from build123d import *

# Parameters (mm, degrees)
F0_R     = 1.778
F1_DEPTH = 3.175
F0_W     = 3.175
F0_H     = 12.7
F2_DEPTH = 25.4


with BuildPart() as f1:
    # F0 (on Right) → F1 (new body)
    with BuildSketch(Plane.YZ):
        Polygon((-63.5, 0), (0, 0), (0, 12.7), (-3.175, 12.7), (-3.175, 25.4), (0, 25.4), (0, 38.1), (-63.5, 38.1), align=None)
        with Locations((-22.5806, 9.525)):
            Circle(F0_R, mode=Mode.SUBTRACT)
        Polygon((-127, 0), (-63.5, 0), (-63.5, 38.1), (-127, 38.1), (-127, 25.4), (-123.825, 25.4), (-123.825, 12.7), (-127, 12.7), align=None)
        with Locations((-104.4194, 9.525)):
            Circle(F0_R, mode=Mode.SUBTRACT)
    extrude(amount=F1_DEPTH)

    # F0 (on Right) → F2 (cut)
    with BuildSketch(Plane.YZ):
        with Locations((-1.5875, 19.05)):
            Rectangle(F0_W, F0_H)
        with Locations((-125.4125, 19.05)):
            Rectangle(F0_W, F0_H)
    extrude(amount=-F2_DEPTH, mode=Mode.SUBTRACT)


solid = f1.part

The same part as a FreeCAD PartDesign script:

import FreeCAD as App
import Part
import Sketcher

V = App.Vector
Q = App.Units.Quantity

doc = App.newDocument("Part")
body = doc.addObject("PartDesign::Body", "Body")

sketch1 = body.newObject("Sketcher::SketchObject", "Sketch")
sketch1.AttachmentSupport = (doc.getObject("YZ_Plane"), [""])
sketch1.MapMode = "FlatFace"
sketch1.addGeometry([
    Part.LineSegment(V(0, 0, 0), V(0, 12.7, 0)),
    Part.LineSegment(V(0, 12.7, 0), V(-3.2, 12.7, 0)),
    Part.LineSegment(V(-3.2, 12.7, 0), V(-3.2, 25.4, 0)),
    Part.LineSegment(V(-3.2, 25.4, 0), V(0, 25.4, 0)),
    Part.LineSegment(V(0, 25.4, 0), V(0, 38.1, 0)),
    Part.LineSegment(V(0, 38.1, 0), V(-127, 38.1, 0)),
    Part.LineSegment(V(-127, 38.1, 0), V(-127, 25.4, 0)),
    Part.LineSegment(V(-127, 25.4, 0), V(-123.8, 25.4, 0)),
    Part.LineSegment(V(-123.8, 25.4, 0), V(-123.8, 12.7, 0)),
    Part.LineSegment(V(-123.8, 12.7, 0), V(-127, 12.7, 0)),
    Part.LineSegment(V(-127, 12.7, 0), V(-127, 0, 0)),
    Part.LineSegment(V(-127, 0, 0), V(0, 0, 0)),
    Part.Circle(V(-104.4, 9.5, 0), V(0, 0, 1), 1.8),
    Part.Circle(V(-22.6, 9.5, 0), V(0, 0, 1), 1.8),
], False)
sketch1.addConstraint([
    Sketcher.Constraint("Coincident", 0, 2, 1, 1),
    Sketcher.Constraint("Coincident", 1, 2, 2, 1),
    Sketcher.Constraint("Coincident", 2, 2, 3, 1),
    Sketcher.Constraint("Coincident", 3, 2, 4, 1),
    Sketcher.Constraint("Coincident", 4, 2, 5, 1),
    Sketcher.Constraint("Coincident", 5, 2, 6, 1),
    Sketcher.Constraint("Coincident", 6, 2, 7, 1),
    Sketcher.Constraint("Coincident", 7, 2, 8, 1),
    Sketcher.Constraint("Coincident", 8, 2, 9, 1),
    Sketcher.Constraint("Coincident", 9, 2, 10, 1),
    Sketcher.Constraint("Coincident", 10, 2, 11, 1),
    Sketcher.Constraint("Coincident", 11, 2, 0, 1),
    Sketcher.Constraint("Vertical", 0),
    Sketcher.Constraint("Horizontal", 1),
    Sketcher.Constraint("Vertical", 2),
    Sketcher.Constraint("Horizontal", 3),
    Sketcher.Constraint("Vertical", 4),
    Sketcher.Constraint("Horizontal", 5),
    Sketcher.Constraint("Vertical", 6),
    Sketcher.Constraint("Horizontal", 7),
    Sketcher.Constraint("Vertical", 8),
    Sketcher.Constraint("Horizontal", 9),
    Sketcher.Constraint("Vertical", 10),
    Sketcher.Constraint("Horizontal", 11),
    Sketcher.Constraint("Coincident", 11, 2, -1, 1),
    Sketcher.Constraint("Equal", 12, 13),
    Sketcher.Constraint("PointOnObject", 3, 2, -2),
    Sketcher.Constraint("Horizontal", 12, 3, 13, 3),
    Sketcher.Constraint("Horizontal", 3, 2, 6, 2),
    Sketcher.Constraint("Horizontal", 1, 2, 8, 2),
    Sketcher.Constraint("Vertical", 6, 2, 9, 2),
    Sketcher.Constraint("Equal", 3, 7),
    Sketcher.Constraint("Equal", 0, 2),
    Sketcher.Constraint("Equal", 2, 4),
    Sketcher.Constraint("Diameter", 12, Q("0.14 in")),
    Sketcher.Constraint("DistanceX", 5, 2, 5, 1, Q("5 in")),
    Sketcher.Constraint("DistanceY", 0, 1, 0, 2, Q("0.5 in")),
    Sketcher.Constraint("DistanceX", 1, 2, 1, 1, Q("0.125 in")),
    Sketcher.Constraint("DistanceX", 12, 3, -1, 1, Q("4.111 in")),
    Sketcher.Constraint("DistanceY", -1, 1, 12, 3, Q("0.375 in")),
    Sketcher.Constraint("DistanceX", 13, 3, -1, 1, Q("0.889 in")),
])
pad1 = body.newObject("PartDesign::Pad", "Pad")
pad1.Profile = sketch1
pad1.Length = Q("0.125 in")

sketch2 = body.newObject("Sketcher::SketchObject", "Sketch001")
sketch2.AttachmentSupport = (doc.getObject("YZ_Plane"), [""])
sketch2.MapMode = "FlatFace"
sketch2.addGeometry([
    Part.LineSegment(V(-3.2, 25.4, 0), V(-3.2, 12.7, 0)),
    Part.LineSegment(V(-3.2, 12.7, 0), V(0, 12.7, 0)),
    Part.LineSegment(V(0, 12.7, 0), V(0, 25.4, 0)),
    Part.LineSegment(V(0, 25.4, 0), V(-3.2, 25.4, 0)),
    Part.LineSegment(V(-127, 25.4, 0), V(-127, 12.7, 0)),
    Part.LineSegment(V(-127, 12.7, 0), V(-123.8, 12.7, 0)),
    Part.LineSegment(V(-123.8, 12.7, 0), V(-123.8, 25.4, 0)),
    Part.LineSegment(V(-123.8, 25.4, 0), V(-127, 25.4, 0)),
], False)
sketch2.addConstraint([
    Sketcher.Constraint("Coincident", 0, 2, 1, 1),
    Sketcher.Constraint("Coincident", 1, 2, 2, 1),
    Sketcher.Constraint("Coincident", 2, 2, 3, 1),
    Sketcher.Constraint("Coincident", 3, 2, 0, 1),
    Sketcher.Constraint("Coincident", 4, 2, 5, 1),
    Sketcher.Constraint("Coincident", 5, 2, 6, 1),
    Sketcher.Constraint("Coincident", 6, 2, 7, 1),
    Sketcher.Constraint("Coincident", 7, 2, 4, 1),
    Sketcher.Constraint("Vertical", 0),
    Sketcher.Constraint("Horizontal", 1),
    Sketcher.Constraint("Vertical", 2),
    Sketcher.Constraint("Horizontal", 3),
    Sketcher.Constraint("Vertical", 4),
    Sketcher.Constraint("Horizontal", 5),
    Sketcher.Constraint("Vertical", 6),
    Sketcher.Constraint("Horizontal", 7),
    Sketcher.Constraint("PointOnObject", 1, 2, -2),
    Sketcher.Constraint("Horizontal", 1, 2, 4, 2),
    Sketcher.Constraint("Horizontal", 3, 2, 6, 2),
    Sketcher.Constraint("Equal", 3, 5),
    Sketcher.Constraint("DistanceY", 0, 2, 0, 1, Q("0.5 in")),
    Sketcher.Constraint("DistanceY", -1, 1, 2, 2, Q("1 in")),
    Sketcher.Constraint("DistanceX", 4, 2, -1, 1, Q("5 in")),
    Sketcher.Constraint("DistanceX", 1, 1, 1, 2, Q("0.125 in")),
])
pocket1 = body.newObject("PartDesign::Pocket", "Pocket")
pocket1.Profile = sketch2
pocket1.Length = Q("1 in")

doc.recompute()
